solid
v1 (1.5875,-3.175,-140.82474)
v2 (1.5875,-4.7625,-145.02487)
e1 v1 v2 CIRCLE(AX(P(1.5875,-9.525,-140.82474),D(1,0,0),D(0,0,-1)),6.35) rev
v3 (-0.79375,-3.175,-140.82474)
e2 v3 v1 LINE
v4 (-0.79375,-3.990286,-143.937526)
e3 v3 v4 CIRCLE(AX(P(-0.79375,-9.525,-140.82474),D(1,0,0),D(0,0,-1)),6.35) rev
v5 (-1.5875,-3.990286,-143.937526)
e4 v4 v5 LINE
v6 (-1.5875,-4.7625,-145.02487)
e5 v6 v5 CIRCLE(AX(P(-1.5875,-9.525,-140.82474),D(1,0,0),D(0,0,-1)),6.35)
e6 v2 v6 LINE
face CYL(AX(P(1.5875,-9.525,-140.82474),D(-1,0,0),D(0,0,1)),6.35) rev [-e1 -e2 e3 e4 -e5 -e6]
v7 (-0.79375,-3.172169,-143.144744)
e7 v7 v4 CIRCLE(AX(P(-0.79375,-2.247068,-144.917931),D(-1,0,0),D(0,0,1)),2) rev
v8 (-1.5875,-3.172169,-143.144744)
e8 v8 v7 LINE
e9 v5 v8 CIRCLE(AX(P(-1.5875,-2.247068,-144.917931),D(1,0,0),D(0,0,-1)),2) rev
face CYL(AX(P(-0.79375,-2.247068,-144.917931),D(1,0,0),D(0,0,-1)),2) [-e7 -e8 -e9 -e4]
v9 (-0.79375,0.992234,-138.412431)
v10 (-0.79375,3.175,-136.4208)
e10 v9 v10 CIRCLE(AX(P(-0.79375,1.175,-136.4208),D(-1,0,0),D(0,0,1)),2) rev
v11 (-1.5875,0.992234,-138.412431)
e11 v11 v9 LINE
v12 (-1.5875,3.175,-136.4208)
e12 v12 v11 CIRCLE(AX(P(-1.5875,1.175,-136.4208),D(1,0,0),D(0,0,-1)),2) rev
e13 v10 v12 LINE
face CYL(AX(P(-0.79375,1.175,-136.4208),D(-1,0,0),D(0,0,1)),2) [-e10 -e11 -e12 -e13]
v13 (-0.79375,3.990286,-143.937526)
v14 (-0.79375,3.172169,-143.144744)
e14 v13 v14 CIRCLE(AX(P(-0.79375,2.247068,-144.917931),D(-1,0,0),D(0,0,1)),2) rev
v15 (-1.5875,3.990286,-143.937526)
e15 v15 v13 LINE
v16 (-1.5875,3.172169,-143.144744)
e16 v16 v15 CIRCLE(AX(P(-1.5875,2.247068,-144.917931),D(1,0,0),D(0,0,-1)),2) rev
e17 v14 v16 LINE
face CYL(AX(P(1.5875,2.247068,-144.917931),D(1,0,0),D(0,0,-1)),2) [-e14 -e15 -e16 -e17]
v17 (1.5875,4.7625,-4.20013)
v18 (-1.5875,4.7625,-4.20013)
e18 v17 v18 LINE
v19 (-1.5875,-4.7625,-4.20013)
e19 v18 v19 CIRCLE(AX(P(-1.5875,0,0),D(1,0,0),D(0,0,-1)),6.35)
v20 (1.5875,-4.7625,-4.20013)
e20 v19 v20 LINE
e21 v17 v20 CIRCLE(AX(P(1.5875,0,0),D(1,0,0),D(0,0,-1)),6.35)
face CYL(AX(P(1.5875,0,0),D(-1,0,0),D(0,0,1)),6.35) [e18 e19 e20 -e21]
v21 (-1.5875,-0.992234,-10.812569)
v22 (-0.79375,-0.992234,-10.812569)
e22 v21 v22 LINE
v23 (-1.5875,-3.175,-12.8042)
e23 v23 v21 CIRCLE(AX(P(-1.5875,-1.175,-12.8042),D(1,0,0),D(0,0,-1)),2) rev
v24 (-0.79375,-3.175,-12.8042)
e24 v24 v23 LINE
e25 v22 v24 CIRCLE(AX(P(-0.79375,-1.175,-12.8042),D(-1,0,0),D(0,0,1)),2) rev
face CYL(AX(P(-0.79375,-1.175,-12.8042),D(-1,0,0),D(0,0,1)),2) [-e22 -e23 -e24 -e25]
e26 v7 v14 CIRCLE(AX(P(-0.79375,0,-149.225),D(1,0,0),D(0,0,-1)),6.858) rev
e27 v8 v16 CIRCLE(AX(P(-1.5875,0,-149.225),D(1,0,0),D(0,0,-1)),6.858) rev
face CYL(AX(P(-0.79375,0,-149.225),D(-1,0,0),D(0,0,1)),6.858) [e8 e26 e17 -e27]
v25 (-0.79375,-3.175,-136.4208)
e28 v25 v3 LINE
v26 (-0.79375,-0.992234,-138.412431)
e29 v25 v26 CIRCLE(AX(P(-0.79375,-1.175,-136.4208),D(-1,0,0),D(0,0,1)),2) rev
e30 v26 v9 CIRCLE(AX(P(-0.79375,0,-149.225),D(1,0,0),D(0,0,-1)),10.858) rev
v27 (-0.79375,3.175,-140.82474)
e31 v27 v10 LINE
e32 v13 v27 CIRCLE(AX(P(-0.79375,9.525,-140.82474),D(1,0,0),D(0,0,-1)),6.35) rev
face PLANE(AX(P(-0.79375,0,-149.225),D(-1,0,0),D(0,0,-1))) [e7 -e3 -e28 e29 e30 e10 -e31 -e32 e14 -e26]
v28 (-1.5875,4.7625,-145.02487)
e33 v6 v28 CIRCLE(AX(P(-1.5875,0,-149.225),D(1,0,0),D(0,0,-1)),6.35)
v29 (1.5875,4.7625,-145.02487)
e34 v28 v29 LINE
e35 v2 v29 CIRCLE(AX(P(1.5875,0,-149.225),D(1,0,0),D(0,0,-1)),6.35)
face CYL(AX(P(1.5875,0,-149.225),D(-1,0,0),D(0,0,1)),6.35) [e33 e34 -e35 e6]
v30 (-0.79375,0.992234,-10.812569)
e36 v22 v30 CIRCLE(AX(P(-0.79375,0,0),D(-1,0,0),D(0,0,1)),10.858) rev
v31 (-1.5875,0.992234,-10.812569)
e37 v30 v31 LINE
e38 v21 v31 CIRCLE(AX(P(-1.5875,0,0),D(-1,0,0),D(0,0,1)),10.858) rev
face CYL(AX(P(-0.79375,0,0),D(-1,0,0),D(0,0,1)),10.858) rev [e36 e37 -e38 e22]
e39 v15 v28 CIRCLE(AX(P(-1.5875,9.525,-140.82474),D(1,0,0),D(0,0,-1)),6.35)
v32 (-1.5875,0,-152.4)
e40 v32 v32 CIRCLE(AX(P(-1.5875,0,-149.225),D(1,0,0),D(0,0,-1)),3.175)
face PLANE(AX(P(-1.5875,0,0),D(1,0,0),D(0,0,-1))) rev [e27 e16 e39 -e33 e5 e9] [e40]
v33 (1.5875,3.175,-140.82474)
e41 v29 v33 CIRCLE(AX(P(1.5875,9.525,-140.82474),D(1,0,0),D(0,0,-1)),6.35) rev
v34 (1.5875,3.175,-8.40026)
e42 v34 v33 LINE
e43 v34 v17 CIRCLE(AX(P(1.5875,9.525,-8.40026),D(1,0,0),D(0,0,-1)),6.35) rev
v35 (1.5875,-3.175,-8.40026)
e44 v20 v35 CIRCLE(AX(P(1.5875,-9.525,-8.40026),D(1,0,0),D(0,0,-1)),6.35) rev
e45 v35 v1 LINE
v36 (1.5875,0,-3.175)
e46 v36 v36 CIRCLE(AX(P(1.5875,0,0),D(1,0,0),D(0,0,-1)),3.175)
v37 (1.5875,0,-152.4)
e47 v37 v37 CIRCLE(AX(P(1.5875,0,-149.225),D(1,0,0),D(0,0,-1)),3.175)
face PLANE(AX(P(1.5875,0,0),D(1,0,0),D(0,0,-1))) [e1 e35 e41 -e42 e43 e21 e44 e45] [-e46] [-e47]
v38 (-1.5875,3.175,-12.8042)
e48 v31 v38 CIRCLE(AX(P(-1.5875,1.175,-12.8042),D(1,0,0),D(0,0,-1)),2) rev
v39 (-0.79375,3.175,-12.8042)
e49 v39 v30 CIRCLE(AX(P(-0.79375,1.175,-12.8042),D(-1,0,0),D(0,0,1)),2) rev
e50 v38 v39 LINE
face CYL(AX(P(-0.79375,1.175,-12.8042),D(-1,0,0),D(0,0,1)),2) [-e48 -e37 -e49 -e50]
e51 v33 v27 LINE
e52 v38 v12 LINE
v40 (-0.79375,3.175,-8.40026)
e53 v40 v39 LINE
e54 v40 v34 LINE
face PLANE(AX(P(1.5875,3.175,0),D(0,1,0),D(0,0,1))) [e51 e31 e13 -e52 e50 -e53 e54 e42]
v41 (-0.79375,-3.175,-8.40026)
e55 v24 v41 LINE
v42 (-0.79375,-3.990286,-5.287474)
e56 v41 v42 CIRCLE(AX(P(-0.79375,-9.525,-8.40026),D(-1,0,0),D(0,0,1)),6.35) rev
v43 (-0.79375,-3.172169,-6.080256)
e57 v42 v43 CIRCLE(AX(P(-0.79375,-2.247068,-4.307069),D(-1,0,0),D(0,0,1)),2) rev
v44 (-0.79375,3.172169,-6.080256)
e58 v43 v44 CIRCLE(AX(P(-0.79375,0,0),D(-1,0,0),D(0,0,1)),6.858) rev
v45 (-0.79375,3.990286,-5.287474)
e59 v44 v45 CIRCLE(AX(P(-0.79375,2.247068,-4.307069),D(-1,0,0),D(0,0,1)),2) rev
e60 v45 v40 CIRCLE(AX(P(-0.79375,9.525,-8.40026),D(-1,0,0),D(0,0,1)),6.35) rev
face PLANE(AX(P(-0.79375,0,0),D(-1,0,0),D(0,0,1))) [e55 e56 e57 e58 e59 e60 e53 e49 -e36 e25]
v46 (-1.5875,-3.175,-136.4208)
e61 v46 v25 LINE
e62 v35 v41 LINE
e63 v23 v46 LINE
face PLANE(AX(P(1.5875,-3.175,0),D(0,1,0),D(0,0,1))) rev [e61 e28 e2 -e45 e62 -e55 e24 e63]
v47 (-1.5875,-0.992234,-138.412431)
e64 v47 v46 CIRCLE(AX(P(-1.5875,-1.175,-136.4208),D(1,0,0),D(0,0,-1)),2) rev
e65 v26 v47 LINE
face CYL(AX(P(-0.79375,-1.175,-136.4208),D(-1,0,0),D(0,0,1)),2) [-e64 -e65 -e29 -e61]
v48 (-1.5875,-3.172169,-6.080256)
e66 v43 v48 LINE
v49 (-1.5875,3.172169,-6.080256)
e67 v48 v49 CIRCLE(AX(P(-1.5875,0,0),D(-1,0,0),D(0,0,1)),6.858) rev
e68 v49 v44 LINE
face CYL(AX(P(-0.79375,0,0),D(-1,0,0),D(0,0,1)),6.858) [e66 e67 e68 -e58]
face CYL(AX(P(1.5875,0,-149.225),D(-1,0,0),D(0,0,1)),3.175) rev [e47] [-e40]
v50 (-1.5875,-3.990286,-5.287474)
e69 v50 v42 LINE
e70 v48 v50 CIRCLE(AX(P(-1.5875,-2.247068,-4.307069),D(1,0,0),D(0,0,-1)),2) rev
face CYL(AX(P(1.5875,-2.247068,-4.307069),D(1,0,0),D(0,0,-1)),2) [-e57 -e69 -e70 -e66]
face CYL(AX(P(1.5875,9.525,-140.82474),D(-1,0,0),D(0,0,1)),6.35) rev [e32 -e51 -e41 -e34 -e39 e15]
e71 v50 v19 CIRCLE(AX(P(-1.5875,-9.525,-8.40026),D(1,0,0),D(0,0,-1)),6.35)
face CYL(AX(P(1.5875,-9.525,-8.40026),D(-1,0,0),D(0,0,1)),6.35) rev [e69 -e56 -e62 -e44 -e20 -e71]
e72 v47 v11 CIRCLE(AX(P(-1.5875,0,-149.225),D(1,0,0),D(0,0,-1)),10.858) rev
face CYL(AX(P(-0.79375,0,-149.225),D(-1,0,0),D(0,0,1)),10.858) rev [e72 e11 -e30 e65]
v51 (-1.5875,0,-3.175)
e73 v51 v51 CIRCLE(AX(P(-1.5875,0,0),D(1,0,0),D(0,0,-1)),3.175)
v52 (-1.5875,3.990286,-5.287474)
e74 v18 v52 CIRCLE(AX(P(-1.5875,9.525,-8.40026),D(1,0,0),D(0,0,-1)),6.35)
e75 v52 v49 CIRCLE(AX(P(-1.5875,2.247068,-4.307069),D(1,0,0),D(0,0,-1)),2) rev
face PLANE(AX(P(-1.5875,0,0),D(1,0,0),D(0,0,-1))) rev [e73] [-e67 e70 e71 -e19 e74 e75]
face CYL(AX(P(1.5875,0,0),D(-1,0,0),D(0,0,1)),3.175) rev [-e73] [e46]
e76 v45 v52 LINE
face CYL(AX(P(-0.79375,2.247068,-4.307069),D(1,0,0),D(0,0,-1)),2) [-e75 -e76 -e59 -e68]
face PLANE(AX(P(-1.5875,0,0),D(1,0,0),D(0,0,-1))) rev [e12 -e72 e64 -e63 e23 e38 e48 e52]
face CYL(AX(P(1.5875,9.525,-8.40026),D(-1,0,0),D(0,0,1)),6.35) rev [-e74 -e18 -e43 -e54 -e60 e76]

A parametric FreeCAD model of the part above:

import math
import FreeCAD as App
import Part
import Sketcher
Q = App.Units.Quantity


def edges_at(feature, points):
    """Names of the edges that pass closest to the given points."""
    edges = feature.Shape.Edges
    near = lambda p: min(range(len(edges)), key=lambda i: edges[i].distToShape(Part.Vertex(*p))[0])
    return sorted({f"Edge{near(p) + 1}" for p in points})

doc = App.newDocument("Part")
body = doc.addObject("PartDesign::Body", "Body")

# Sketch on YZ plane
sketch1 = body.newObject("Sketcher::SketchObject", "Sketch")
sketch1.AttachmentSupport = (doc.getObject("YZ_Plane"), [""])
sketch1.MapMode = "FlatFace"
sketch1.addGeometry(Part.ArcOfCircle(Part.Circle(App.Vector(0, 0, 0), App.Vector(0, 0, 1), 6.3), math.radians(-60), math.radians(240)), False)
sketch1.addGeometry(Part.LineSegment(App.Vector(-3.2, -5.5, 0), App.Vector(-3.2, -143.7, 0)), False)
sketch1.addGeometry(Part.ArcOfCircle(Part.Circle(App.Vector(0, -149.2, 0), App.Vector(0, 0, 1), 6.3), math.radians(120), math.radians(420)), False)
sketch1.addGeometry(Part.LineSegment(App.Vector(3.2, -143.7, 0), App.Vector(3.2, -5.5, 0)), False)
sketch1.addGeometry(Part.Circle(App.Vector(0, 0, 0), App.Vector(0, 0, 1), 3.2), False)
sketch1.addGeometry(Part.Circle(App.Vector(0, -149.2, 0), App.Vector(0, 0, 1), 3.2), False)
sketch1.addConstraint(Sketcher.Constraint("Coincident", 0, 2, 1, 1))
sketch1.addConstraint(Sketcher.Constraint("Coincident", 1, 2, 2, 1))
sketch1.addConstraint(Sketcher.Constraint("Coincident", 2, 2, 3, 1))
sketch1.addConstraint(Sketcher.Constraint("Coincident", 3, 2, 0, 1))
sketch1.addConstraint(Sketcher.Constraint("Vertical", 1))
sketch1.addConstraint(Sketcher.Constraint("Vertical", 3))
sketch1.addConstraint(Sketcher.Constraint("Coincident", 0, 3, -1, 1))
sketch1.addConstraint(Sketcher.Constraint("Coincident", 4, 3, -1, 1))
sketch1.addConstraint(Sketcher.Constraint("Coincident", 5, 3, 2, 3))
sketch1.addConstraint(Sketcher.Constraint("Equal", 0, 2))
sketch1.addConstraint(Sketcher.Constraint("Equal", 4, 5))
sketch1.addConstraint(Sketcher.Constraint("Symmetric", 1, 2, 2, 2, -2))
sketch1.addConstraint(Sketcher.Constraint("Diameter", 4, Q("0.25 in")))
sketch1.addConstraint(Sketcher.Constraint("Radius", 0, Q("0.25 in")))
sketch1.addConstraint(Sketcher.Constraint("DistanceX", 1, 2, 2, 2, Q("0.25 in")))
sketch1.addConstraint(Sketcher.Constraint("DistanceY", 2, 3, -1, 1, Q("5.875 in")))
pad1 = body.newObject("PartDesign::Pad", "Pad")
pad1.Profile = sketch1
pad1.Length = Q("0.125 in")
pad1.Midplane = True
doc.recompute()

fillet = body.newObject("PartDesign::Fillet", "Fillet")
fillet.Base = (pad1, edges_at(pad1, [
    (0, 3.175, -5.499),
    (0, 3.175, -143.726),
    (0, -3.175, -143.726),
    (0, -3.175, -5.499),
]))
fillet.Radius = Q("0.25 in")

# Sketch on YZ plane
sketch2 = body.newObject("Sketcher::SketchObject", "Sketch001")
sketch2.AttachmentSupport = (doc.getObject("YZ_Plane"), [""])
sketch2.MapMode = "FlatFace"
sketch2.AttachmentOffset = App.Placement(App.Vector(0, 0, -0.0625 * 25.4), App.Rotation())
sketch2.addGeometry(Part.LineSegment(App.Vector(-3.2, -10.4, 0), App.Vector(-3.2, -8.4, 0)), False)
sketch2.addGeometry(Part.ArcOfCircle(Part.Circle(App.Vector(-9.5, -8.4, 0), App.Vector(0, 0, 1), 6.3), math.radians(0), math.radians(25)), False)
sketch2.addGeometry(Part.ArcOfCircle(Part.Circle(App.Vector(0, 0, 0), App.Vector(0, 0, 1), 6.9), math.radians(-123), math.radians(-57)), False)
sketch2.addGeometry(Part.ArcOfCircle(Part.Circle(App.Vector(9.5, -8.4, 0), App.Vector(0, 0, 1), 6.3), math.radians(155), math.radians(180)), False)
sketch2.addGeometry(Part.LineSegment(App.Vector(3.2, -8.4, 0), App.Vector(3.2, -10.4, 0)), False)
sketch2.addGeometry(Part.ArcOfCircle(Part.Circle(App.Vector(0, 0, 0), App.Vector(0, 0, 1), 10.9), math.radians(-107), math.radians(-73)), False)
sketch2.addConstraint(Sketcher.Constraint("Tangent", 0, 2, 1, 1))
sketch2.addConstraint(Sketcher.Constraint("Coincident", 1, 2, 2, 1))
sketch2.addConstraint(Sketcher.Constraint("Coincident", 2, 2, 3, 1))
sketch2.addConstraint(Sketcher.Constraint("Tangent", 3, 2, 4, 1))
sketch2.addConstraint(Sketcher.Constraint("Coincident", 4, 2, 5, 2))
sketch2.addConstraint(Sketcher.Constraint("Coincident", 5, 1, 0, 1))
sketch2.addConstraint(Sketcher.Constraint("Vertical", 0))
sketch2.addConstraint(Sketcher.Constraint("Vertical", 4))
sketch2.addConstraint(Sketcher.Constraint("Coincident", 2, 3, -1, 1))
sketch2.addConstraint(Sketcher.Constraint("Coincident", 5, 3, -1, 1))
sketch2.addConstraint(Sketcher.Constraint("Equal", 1, 3))
sketch2.addConstraint(Sketcher.Constraint("Symmetric", 1, 3, 3, 3, -2))
sketch2.addConstraint(Sketcher.Constraint("Radius", 1, Q("0.25 in")))
sketch2.addConstraint(Sketcher.Constraint("Radius", 2, Q("0.27 in")))
sketch2.addConstraint(Sketcher.Constraint("DistanceX", 0, 2, 3, 3, Q("0.5 in")))
sketch2.addConstraint(Sketcher.Constraint("Radius", 5, 10.858))
sketch2.addConstraint(Sketcher.Constraint("DistanceY", 0, 1, 0, 2, 1.983166))
pocket1 = body.newObject("PartDesign::Pocket", "Pocket")
pocket1.Profile = sketch2
pocket1.Length = Q("0.03125 in")
pocket1.Reversed = True
doc.recompute()

datumplane = body.newObject("PartDesign::Plane", "DatumPlane")
datumplane.AttachmentSupport = (doc.getObject("XY_Plane"), [""])
datumplane.MapMode = "FlatFace"
datumplane.AttachmentOffset = App.Placement(App.Vector(0, 0, -2.9375 * 25.4), App.Rotation())
mirrored = body.newObject("PartDesign::Mirrored", "Mirrored")
mirrored.Originals = [pocket1]
mirrored.MirrorPlane = (datumplane, [""])
body.Tip = mirrored
doc.recompute()

fillet2 = body.newObject("PartDesign::Fillet", "Fillet001")
fillet2.Base = (mirrored, edges_at(mirrored, [
    (-1.191, -3.175, -10.383),
    (-1.191, 3.175, -10.383),
    (-1.191, 3.762, -5.734),
    (-1.191, -3.762, -5.734),
    (-1.191, 3.175, -138.842),
    (-1.191, -3.175, -138.842),
    (-1.191, -3.762, -143.491),
    (-1.191, 3.762, -143.491),
]))
fillet2.Radius = 2

doc.recompute()
